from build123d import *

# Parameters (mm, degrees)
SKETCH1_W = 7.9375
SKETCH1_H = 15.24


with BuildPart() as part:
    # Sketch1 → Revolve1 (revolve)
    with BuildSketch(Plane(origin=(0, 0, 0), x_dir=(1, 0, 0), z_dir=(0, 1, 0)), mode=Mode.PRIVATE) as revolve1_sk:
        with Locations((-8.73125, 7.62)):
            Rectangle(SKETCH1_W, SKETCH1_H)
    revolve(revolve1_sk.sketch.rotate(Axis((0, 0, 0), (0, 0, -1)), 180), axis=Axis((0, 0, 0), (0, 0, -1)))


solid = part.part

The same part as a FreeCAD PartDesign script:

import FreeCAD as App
import Part
import Sketcher
from FreeCAD import Vector
Q = App.Units.Quantity


def add_polygon(sketch, points):
    """Adds a closed chain of lines whose ends are joined by coincident constraints."""
    first, n = sketch.GeometryCount, len(points)
    for a, b in zip(points, points[1:] + points[:1]):
        sketch.addGeometry(Part.LineSegment(App.Vector(*a, 0), App.Vector(*b, 0)), False)
    for i in range(n):
        sketch.addConstraint(Sketcher.Constraint("Coincident", first + i, 2, first + (i + 1) % n, 1))

doc = App.newDocument("Part")
body = doc.addObject("PartDesign::Body", "Body")

# Sketch on XZ plane
sketch1 = body.newObject("Sketcher::SketchObject", "Sketch")
sketch1.AttachmentSupport = (doc.getObject("XZ_Plane"), [""])
sketch1.MapMode = "FlatFace"
add_polygon(sketch1, [(-12.7, -15.24), (-12.7, 0), (-4.7625, 0), (-4.7625, -15.24)])  # lines 0-3
sketch1.addConstraint([
    Sketcher.Constraint("Vertical", 0),
    Sketcher.Constraint("Horizontal", 1),
    Sketcher.Constraint("Vertical", 2),
    Sketcher.Constraint("Horizontal", 3),
    Sketcher.Constraint("PointOnObject", 0, 2, -1),
    Sketcher.Constraint("DistanceY", 0, 1, 0, 2, Q("0.6 in")),
    Sketcher.Constraint("DistanceX", 0, 2, -1, 1, Q("0.5 in")),
    Sketcher.Constraint("DistanceX", 1, 1, 1, 2, Q("0.3125 in")),
])
revolution = body.newObject("PartDesign::Revolution", "Revolution")
revolution.Profile = sketch1
revolution.ReferenceAxis = (sketch1, ["V_Axis"])
revolution.Angle = 360

doc.recompute()
